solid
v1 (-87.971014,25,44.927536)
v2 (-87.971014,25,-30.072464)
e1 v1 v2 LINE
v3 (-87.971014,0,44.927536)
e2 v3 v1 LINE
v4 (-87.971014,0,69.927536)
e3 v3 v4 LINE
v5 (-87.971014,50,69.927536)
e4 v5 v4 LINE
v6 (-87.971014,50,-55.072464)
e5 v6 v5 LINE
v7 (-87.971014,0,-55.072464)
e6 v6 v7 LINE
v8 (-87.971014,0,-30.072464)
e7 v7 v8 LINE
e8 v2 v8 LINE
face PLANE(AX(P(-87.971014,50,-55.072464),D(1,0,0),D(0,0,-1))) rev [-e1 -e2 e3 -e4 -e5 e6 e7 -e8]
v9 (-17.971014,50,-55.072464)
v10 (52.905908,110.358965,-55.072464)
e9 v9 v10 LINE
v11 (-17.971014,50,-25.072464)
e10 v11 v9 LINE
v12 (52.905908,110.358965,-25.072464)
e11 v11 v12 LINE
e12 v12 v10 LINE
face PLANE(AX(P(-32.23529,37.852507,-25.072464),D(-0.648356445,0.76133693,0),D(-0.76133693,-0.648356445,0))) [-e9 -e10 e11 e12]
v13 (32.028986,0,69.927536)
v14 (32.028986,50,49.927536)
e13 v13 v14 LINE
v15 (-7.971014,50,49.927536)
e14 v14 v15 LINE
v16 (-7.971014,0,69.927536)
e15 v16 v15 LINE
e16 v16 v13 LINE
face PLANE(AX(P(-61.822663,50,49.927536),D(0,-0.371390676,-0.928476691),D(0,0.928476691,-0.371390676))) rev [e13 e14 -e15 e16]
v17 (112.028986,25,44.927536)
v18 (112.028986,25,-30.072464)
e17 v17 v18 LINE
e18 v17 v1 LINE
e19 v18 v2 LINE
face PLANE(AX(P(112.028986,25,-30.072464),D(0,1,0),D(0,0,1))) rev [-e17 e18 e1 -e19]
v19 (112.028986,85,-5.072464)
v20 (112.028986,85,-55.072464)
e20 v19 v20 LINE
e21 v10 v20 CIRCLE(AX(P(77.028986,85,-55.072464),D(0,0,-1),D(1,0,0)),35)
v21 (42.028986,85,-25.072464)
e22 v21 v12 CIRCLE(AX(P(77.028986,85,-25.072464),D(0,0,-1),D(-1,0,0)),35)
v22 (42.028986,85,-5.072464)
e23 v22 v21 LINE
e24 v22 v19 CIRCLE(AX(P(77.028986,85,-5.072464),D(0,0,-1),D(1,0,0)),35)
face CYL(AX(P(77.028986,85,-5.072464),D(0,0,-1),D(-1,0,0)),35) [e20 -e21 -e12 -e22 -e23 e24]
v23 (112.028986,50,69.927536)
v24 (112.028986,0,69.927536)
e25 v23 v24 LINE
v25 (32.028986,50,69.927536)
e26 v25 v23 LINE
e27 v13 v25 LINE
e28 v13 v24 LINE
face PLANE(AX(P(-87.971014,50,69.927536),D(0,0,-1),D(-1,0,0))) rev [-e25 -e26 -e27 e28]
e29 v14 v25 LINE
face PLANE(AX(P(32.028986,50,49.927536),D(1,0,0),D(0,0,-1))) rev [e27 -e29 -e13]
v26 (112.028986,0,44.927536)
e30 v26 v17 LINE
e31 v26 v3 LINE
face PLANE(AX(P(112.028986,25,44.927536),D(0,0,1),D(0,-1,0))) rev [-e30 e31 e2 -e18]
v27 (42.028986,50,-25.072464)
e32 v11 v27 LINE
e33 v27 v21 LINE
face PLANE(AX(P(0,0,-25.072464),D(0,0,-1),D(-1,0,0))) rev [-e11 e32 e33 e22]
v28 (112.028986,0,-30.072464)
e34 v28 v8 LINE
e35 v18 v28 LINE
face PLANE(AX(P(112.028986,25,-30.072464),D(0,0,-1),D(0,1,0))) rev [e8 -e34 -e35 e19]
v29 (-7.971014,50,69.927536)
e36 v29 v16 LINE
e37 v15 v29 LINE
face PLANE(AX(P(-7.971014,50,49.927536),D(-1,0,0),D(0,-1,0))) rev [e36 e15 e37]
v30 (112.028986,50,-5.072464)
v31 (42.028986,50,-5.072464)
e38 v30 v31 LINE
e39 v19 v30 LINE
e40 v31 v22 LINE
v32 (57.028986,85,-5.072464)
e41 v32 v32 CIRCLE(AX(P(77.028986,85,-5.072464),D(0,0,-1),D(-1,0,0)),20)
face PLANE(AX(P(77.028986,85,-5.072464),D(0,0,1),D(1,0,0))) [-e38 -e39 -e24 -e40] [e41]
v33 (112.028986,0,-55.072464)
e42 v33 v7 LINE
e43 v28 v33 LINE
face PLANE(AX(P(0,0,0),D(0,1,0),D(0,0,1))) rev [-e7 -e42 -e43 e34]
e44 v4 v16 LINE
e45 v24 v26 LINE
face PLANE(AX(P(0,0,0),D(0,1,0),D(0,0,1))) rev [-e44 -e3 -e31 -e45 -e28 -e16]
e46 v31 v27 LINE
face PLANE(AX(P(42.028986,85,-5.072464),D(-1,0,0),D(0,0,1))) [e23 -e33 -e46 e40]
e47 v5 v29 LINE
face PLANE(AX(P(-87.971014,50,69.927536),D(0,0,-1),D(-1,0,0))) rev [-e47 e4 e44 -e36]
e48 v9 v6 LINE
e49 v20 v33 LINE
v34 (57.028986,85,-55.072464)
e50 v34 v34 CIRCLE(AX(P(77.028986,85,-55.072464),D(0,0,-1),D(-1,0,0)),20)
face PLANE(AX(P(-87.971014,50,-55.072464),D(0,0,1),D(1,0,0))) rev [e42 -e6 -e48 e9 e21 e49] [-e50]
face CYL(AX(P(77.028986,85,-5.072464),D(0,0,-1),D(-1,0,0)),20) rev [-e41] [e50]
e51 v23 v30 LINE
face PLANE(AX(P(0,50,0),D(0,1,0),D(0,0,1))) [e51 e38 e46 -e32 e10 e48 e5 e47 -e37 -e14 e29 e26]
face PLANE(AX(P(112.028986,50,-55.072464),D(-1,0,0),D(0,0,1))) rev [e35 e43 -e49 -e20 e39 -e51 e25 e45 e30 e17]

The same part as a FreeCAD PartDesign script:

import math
import FreeCAD as App
import Part
import Sketcher
from FreeCAD import Vector
Q = App.Units.Quantity

doc = App.newDocument("Part")
params = doc.addObject("Spreadsheet::Sheet", "Params")
for row, (alias, value) in enumerate([
    ("sketch1_width", "200 mm"),
    ("sketch1_height", "125 mm"),
    ("pad1_length", "50 mm"),
    ("sketch2_width", "25 mm"),
    ("sketch2_height", "75 mm"),
    ("sketch3_width", "40 mm"),
    ("sketch3_height", "50 mm"),
    ("pocket2_length", "20 mm"),
    ("sketch4_width", "50 mm"),
    ("sketch4_height", "20 mm"),
    ("pad2_length", "40 mm"),
    ("sketch5_diameter", "40 mm"),
    ("sketch5_radius", "35 mm"),
    ("sketch5_height", "35 mm"),
    ("pad3_length", "50 mm"),
    ("sketch6_radius", "35 mm"),
    ("sketch6_width", "60 mm"),
    ("sketch6_height", "35 mm"),
    ("pad4_length", "30 mm"),
], start=1):
    params.set(f"A{row}", alias)
    params.set(f"B{row}", "=" + value)
    params.setAlias(f"B{row}", alias)

body = doc.addObject("PartDesign::Body", "Body")

# Sketch on XZ plane
sketch1 = body.newObject("Sketcher::SketchObject", "Sketch")
sketch1.AttachmentSupport = (doc.getObject("XZ_Plane"), [""])
sketch1.MapMode = "FlatFace"
sketch1.addGeometry(Part.LineSegment(Vector(-88, -55, 0), Vector(-88, 70, 0)), False)
sketch1.addGeometry(Part.LineSegment(Vector(-88, 70, 0), Vector(112, 70, 0)), False)
sketch1.addGeometry(Part.LineSegment(Vector(112, 70, 0), Vector(112, -55, 0)), False)
sketch1.addGeometry(Part.LineSegment(Vector(112, -55, 0), Vector(-88, -55, 0)), False)
sketch1.addConstraint(Sketcher.Constraint("Coincident", 0, 2, 1, 1))
sketch1.addConstraint(Sketcher.Constraint("Coincident", 1, 2, 2, 1))
sketch1.addConstraint(Sketcher.Constraint("Coincident", 2, 2, 3, 1))
sketch1.addConstraint(Sketcher.Constraint("Coincident", 3, 2, 0, 1))
sketch1.addConstraint(Sketcher.Constraint("Vertical", 0))
sketch1.addConstraint(Sketcher.Constraint("Horizontal", 1))
sketch1.addConstraint(Sketcher.Constraint("Vertical", 2))
sketch1.addConstraint(Sketcher.Constraint("Horizontal", 3))
sketch1.addConstraint(Sketcher.Constraint("DistanceX", 1, 1, 1, 2, Q("200 mm")))
sketch1.addConstraint(Sketcher.Constraint("DistanceY", 0, 1, 0, 2, Q("125 mm")))
sketch1.addConstraint(Sketcher.Constraint("DistanceX", 0, 2, -1, 1, Q("87.971014 mm")))
sketch1.addConstraint(Sketcher.Constraint("DistanceY", -1, 1, 0, 2, Q("69.927536 mm")))
sketch1.setExpression("Constraints[8]", "Params.sketch1_width")
sketch1.setExpression("Constraints[9]", "Params.sketch1_height")
pad1 = body.newObject("PartDesign::Pad", "Pad")
pad1.Profile = sketch1
pad1.setExpression("Length", "Params.pad1_length")
pad1.Reversed = True

# Sketch on YZ plane
sketch2 = body.newObject("Sketcher::SketchObject", "Sketch001")
sketch2.AttachmentSupport = (doc.getObject("YZ_Plane"), [""])
sketch2.MapMode = "FlatFace"
sketch2.AttachmentOffset = App.Placement(Vector(0, 0, -87.971014), App.Rotation())
sketch2.addGeometry(Part.LineSegment(Vector(25, -30, 0), Vector(0, -30, 0)), False)
sketch2.addGeometry(Part.LineSegment(Vector(0, -30, 0), Vector(0, 45, 0)), False)
sketch2.addGeometry(Part.LineSegment(Vector(0, 45, 0), Vector(25, 45, 0)), False)
sketch2.addGeometry(Part.LineSegment(Vector(25, 45, 0), Vector(25, -30, 0)), False)
sketch2.addConstraint(Sketcher.Constraint("Coincident", 0, 2, 1, 1))
sketch2.addConstraint(Sketcher.Constraint("Coincident", 1, 2, 2, 1))
sketch2.addConstraint(Sketcher.Constraint("Coincident", 2, 2, 3, 1))
sketch2.addConstraint(Sketcher.Constraint("Coincident", 3, 2, 0, 1))
sketch2.addConstraint(Sketcher.Constraint("Horizontal", 0))
sketch2.addConstraint(Sketcher.Constraint("Vertical", 1))
sketch2.addConstraint(Sketcher.Constraint("Horizontal", 2))
sketch2.addConstraint(Sketcher.Constraint("Vertical", 3))
sketch2.addConstraint(Sketcher.Constraint("PointOnObject", 0, 2, -2))
sketch2.addConstraint(Sketcher.Constraint("DistanceX", 0, 2, 0, 1, Q("25 mm")))
sketch2.addConstraint(Sketcher.Constraint("DistanceY", 1, 1, 1, 2, Q("75 mm")))
sketch2.addConstraint(Sketcher.Constraint("DistanceY", 0, 2, -1, 1, Q("30.072464 mm")))
sketch2.setExpression("Constraints[9]", "Params.sketch2_width")
sketch2.setExpression("Constraints[10]", "Params.sketch2_height")
pocket1 = body.newObject("PartDesign::Pocket", "Pocket")
pocket1.Profile = sketch2
pocket1.Type = "ThroughAll"
pocket1.Reversed = True

# Sketch on XY plane
sketch3 = body.newObject("Sketcher::SketchObject", "Sketch002")
sketch3.AttachmentSupport = (doc.getObject("XY_Plane"), [""])
sketch3.MapMode = "FlatFace"
sketch3.AttachmentOffset = App.Placement(Vector(0, 0, 69.927536), App.Rotation())
sketch3.addGeometry(Part.LineSegment(Vector(-8, 50, 0), Vector(-8, 0, 0)), False)
sketch3.addGeometry(Part.LineSegment(Vector(-8, 0, 0), Vector(32, 0, 0)), False)
sketch3.addGeometry(Part.LineSegment(Vector(32, 0, 0), Vector(32, 50, 0)), False)
sketch3.addGeometry(Part.LineSegment(Vector(32, 50, 0), Vector(-8, 50, 0)), False)
sketch3.addConstraint(Sketcher.Constraint("Coincident", 0, 2, 1, 1))
sketch3.addConstraint(Sketcher.Constraint("Coincident", 1, 2, 2, 1))
sketch3.addConstraint(Sketcher.Constraint("Coincident", 2, 2, 3, 1))
sketch3.addConstraint(Sketcher.Constraint("Coincident", 3, 2, 0, 1))
sketch3.addConstraint(Sketcher.Constraint("Vertical", 0))
sketch3.addConstraint(Sketcher.Constraint("Horizontal", 1))
sketch3.addConstraint(Sketcher.Constraint("Vertical", 2))
sketch3.addConstraint(Sketcher.Constraint("Horizontal", 3))
sketch3.addConstraint(Sketcher.Constraint("PointOnObject", 0, 2, -1))
sketch3.addConstraint(Sketcher.Constraint("DistanceX", 1, 1, 1, 2, Q("40 mm")))
sketch3.addConstraint(Sketcher.Constraint("DistanceY", 0, 2, 0, 1, Q("50 mm")))
sketch3.addConstraint(Sketcher.Constraint("DistanceX", 0, 2, -1, 1, Q("7.971014 mm")))
sketch3.setExpression("Constraints[9]", "Params.sketch3_width")
sketch3.setExpression("Constraints[10]", "Params.sketch3_height")
pocket2 = body.newObject("PartDesign::Pocket", "Pocket001")
pocket2.Profile = sketch3
pocket2.setExpression("Length", "Params.pocket2_length")

# Sketch on YZ plane
sketch4 = body.newObject("Sketcher::SketchObject", "Sketch003")
sketch4.AttachmentSupport = (doc.getObject("YZ_Plane"), [""])
sketch4.MapMode = "FlatFace"
sketch4.AttachmentOffset = App.Placement(Vector(0, 0, 32.028986), App.Rotation())
sketch4.addGeometry(Part.LineSegment(Vector(0, 70, 0), Vector(50, 50, 0)), False)
sketch4.addGeometry(Part.LineSegment(Vector(50, 50, 0), Vector(0, 50, 0)), False)
sketch4.addGeometry(Part.LineSegment(Vector(0, 50, 0), Vector(0, 70, 0)), False)
sketch4.addConstraint(Sketcher.Constraint("Coincident", 0, 2, 1, 1))
sketch4.addConstraint(Sketcher.Constraint("Coincident", 1, 2, 2, 1))
sketch4.addConstraint(Sketcher.Constraint("Coincident", 2, 2, 0, 1))
sketch4.addConstraint(Sketcher.Constraint("Horizontal", 1))
sketch4.addConstraint(Sketcher.Constraint("Vertical", 2))
sketch4.addConstraint(Sketcher.Constraint("PointOnObject", 1, 2, -2))
sketch4.addConstraint(Sketcher.Constraint("DistanceX", 1, 2, 1, 1, Q("50 mm")))
sketch4.addConstraint(Sketcher.Constraint("DistanceY", 2, 1, 2, 2, Q("20 mm")))
sketch4.addConstraint(Sketcher.Constraint("DistanceY", -1, 1, 0, 2, Q("49.927536 mm")))
sketch4.setExpression("Constraints[6]", "Params.sketch4_width")
sketch4.setExpression("Constraints[7]", "Params.sketch4_height")
pad2 = body.newObject("PartDesign::Pad", "Pad001")
pad2.Profile = sketch4
pad2.setExpression("Length", "Params.pad2_length")
pad2.Reversed = True

# Sketch on XY plane
sketch5 = body.newObject("Sketcher::SketchObject", "Sketch004")
sketch5.AttachmentSupport = (doc.getObject("XY_Plane"), [""])
sketch5.MapMode = "FlatFace"
sketch5.AttachmentOffset = App.Placement(Vector(0, 0, -55.072464), App.Rotation())
sketch5.addGeometry(Part.LineSegment(Vector(112, 50, 0), Vector(42, 50, 0)), False)
sketch5.addGeometry(Part.LineSegment(Vector(42, 50, 0), Vector(42, 85, 0)), False)
sketch5.addGeometry(Part.ArcOfCircle(Part.Circle(Vector(77, 85, 0), Vector(0, 0, 1), 35), math.radians(0), math.radians(180)), False)
sketch5.addGeometry(Part.LineSegment(Vector(112, 85, 0), Vector(112, 50, 0)), False)
sketch5.addGeometry(Part.Circle(Vector(77, 85, 0), Vector(0, 0, 1), 20), False)
sketch5.addConstraint(Sketcher.Constraint("Coincident", 0, 2, 1, 1))
sketch5.addConstraint(Sketcher.Constraint("Tangent", 1, 2, 2, 2))
sketch5.addConstraint(Sketcher.Constraint("Tangent", 2, 1, 3, 1))
sketch5.addConstraint(Sketcher.Constraint("Coincident", 3, 2, 0, 1))
sketch5.addConstraint(Sketcher.Constraint("Horizontal", 0))
sketch5.addConstraint(Sketcher.Constraint("Vertical", 1))
sketch5.addConstraint(Sketcher.Constraint("Vertical", 3))
sketch5.addConstraint(Sketcher.Constraint("Coincident", 4, 3, 2, 3))
sketch5.addConstraint(Sketcher.Constraint("Diameter", 4, Q("40 mm")))
sketch5.addConstraint(Sketcher.Constraint("Radius", 2, Q("35 mm")))
sketch5.addConstraint(Sketcher.Constraint("DistanceY", 1, 1, 1, 2, Q("35 mm")))
sketch5.addConstraint(Sketcher.Constraint("DistanceY", -1, 1, 2, 3, Q("85 mm")))
sketch5.addConstraint(Sketcher.Constraint("DistanceX", -1, 1, 2, 3, Q("77.028986 mm")))
sketch5.setExpression("Constraints[8]", "Params.sketch5_diameter")
sketch5.setExpression("Constraints[9]", "Params.sketch5_radius")
sketch5.setExpression("Constraints[10]", "Params.sketch5_height")
pad3 = body.newObject("PartDesign::Pad", "Pad002")
pad3.Profile = sketch5
pad3.setExpression("Length", "Params.pad3_length")

# Sketch on XY plane
sketch6 = body.newObject("Sketcher::SketchObject", "Sketch005")
sketch6.AttachmentSupport = (doc.getObject("XY_Plane"), [""])
sketch6.MapMode = "FlatFace"
sketch6.AttachmentOffset = App.Placement(Vector(0, 0, -55.072464), App.Rotation())
sketch6.addGeometry(Part.LineSegment(Vector(42, 50, 0), Vector(-18, 50, 0)), False)
sketch6.addGeometry(Part.LineSegment(Vector(-18, 50, 0), Vector(53, 110, 0)), False)
sketch6.addGeometry(Part.ArcOfCircle(Part.Circle(Vector(77, 85, 0), Vector(0, 0, 1), 35), math.radians(134), math.radians(180)), False)
sketch6.addGeometry(Part.LineSegment(Vector(42, 85, 0), Vector(42, 50, 0)), False)
sketch6.addConstraint(Sketcher.Constraint("Coincident", 0, 2, 1, 1))
sketch6.addConstraint(Sketcher.Constraint("Coincident", 1, 2, 2, 1))
sketch6.addConstraint(Sketcher.Constraint("Tangent", 2, 2, 3, 1))
sketch6.addConstraint(Sketcher.Constraint("Coincident", 3, 2, 0, 1))
sketch6.addConstraint(Sketcher.Constraint("Horizontal", 0))
sketch6.addConstraint(Sketcher.Constraint("Vertical", 3))
sketch6.addConstraint(Sketcher.Constraint("Radius", 2, Q("35 mm")))
sketch6.addConstraint(Sketcher.Constraint("DistanceX", 0, 2, 0, 1, Q("60 mm")))
sketch6.addConstraint(Sketcher.Constraint("DistanceY", 3, 2, 3, 1, Q("35 mm")))
sketch6.addConstraint(Sketcher.Constraint("DistanceY", -1, 1, 2, 3, Q("85 mm")))
sketch6.addConstraint(Sketcher.Constraint("Distance", 1, Q("93.095343 mm")))
sketch6.addConstraint(Sketcher.Constraint("DistanceX", -1, 1, 2, 3, Q("77.028986 mm")))
sketch6.setExpression("Constraints[6]", "Params.sketch6_radius")
sketch6.setExpression("Constraints[7]", "Params.sketch6_width")
sketch6.setExpression("Constraints[8]", "Params.sketch6_height")
pad4 = body.newObject("PartDesign::Pad", "Pad003")
pad4.Profile = sketch6
pad4.setExpression("Length", "Params.pad4_length")

doc.recompute()
